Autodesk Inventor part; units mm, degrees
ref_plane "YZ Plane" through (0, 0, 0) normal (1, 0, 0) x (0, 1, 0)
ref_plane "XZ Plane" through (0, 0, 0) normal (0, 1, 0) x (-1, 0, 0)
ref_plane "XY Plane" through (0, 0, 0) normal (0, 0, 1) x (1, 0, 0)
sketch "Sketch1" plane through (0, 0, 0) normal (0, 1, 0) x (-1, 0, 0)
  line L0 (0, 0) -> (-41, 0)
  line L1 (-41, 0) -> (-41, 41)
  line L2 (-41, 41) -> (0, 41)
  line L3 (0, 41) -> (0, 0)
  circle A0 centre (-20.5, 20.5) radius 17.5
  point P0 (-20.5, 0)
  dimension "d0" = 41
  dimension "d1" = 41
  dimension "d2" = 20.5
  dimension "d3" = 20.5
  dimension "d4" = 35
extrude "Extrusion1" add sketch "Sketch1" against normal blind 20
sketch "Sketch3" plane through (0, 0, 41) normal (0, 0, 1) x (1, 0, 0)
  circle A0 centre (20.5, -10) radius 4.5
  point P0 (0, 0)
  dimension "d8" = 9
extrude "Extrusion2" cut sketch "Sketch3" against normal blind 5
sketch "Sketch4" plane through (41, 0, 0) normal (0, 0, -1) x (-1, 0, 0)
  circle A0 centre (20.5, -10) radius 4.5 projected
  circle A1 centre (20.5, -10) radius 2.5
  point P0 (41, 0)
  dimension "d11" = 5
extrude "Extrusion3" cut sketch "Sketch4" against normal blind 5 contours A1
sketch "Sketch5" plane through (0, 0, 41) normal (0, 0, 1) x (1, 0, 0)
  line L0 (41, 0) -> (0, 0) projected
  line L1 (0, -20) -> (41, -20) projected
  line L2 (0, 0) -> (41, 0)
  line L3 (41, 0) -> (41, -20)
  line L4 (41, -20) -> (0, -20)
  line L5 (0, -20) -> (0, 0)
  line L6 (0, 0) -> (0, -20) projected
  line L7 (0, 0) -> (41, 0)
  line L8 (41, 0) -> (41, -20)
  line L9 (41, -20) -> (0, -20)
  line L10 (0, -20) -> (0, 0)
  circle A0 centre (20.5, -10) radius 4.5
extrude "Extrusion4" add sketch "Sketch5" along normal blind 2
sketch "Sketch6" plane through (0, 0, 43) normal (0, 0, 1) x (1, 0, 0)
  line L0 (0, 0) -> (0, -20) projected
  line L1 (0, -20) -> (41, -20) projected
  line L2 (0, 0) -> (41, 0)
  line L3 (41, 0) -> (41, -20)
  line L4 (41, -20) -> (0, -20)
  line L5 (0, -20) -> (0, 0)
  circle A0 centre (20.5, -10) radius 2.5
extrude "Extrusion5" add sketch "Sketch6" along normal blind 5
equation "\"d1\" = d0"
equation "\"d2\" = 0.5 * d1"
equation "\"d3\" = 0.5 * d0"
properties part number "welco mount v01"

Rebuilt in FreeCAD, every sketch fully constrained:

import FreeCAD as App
import Part
import Sketcher
from FreeCAD import Vector
Q = App.Units.Quantity


def add_polygon(sketch, points):
    """Adds a closed chain of lines whose ends are joined by coincident constraints."""
    first, n = sketch.GeometryCount, len(points)
    for a, b in zip(points, points[1:] + points[:1]):
        sketch.addGeometry(Part.LineSegment(App.Vector(*a, 0), App.Vector(*b, 0)), False)
    for i in range(n):
        sketch.addConstraint(Sketcher.Constraint("Coincident", first + i, 2, first + (i + 1) % n, 1))

doc = App.newDocument("Part")
body = doc.addObject("PartDesign::Body", "Body")

# Sketch on XZ plane
sketch1 = doc.addObject("Sketcher::SketchObject", "Sketch")
body.addObject(sketch1)
sketch1.AttachmentSupport = (doc.XZ_Plane, [""])
sketch1.MapMode = "FlatFace"
add_polygon(sketch1, [(41, 0), (0, 0), (0, 41), (41, 41)])  # lines 0-3
sketch1.addGeometry(Part.Circle(Vector(20.5, 20.5, 0), Vector(0, 0, 1), 17.5), False)  # 4
sketch1.addConstraint([
    Sketcher.Constraint("Horizontal", 0),
    Sketcher.Constraint("Vertical", 1),
    Sketcher.Constraint("Horizontal", 2),
    Sketcher.Constraint("Vertical", 3),
    Sketcher.Constraint("Coincident", 0, 2, -1, 1),
    Sketcher.Constraint("Equal", 2, 1),
    Sketcher.Constraint("Diameter", 4, Q("35 mm")),
    Sketcher.Constraint("DistanceX", 0, 2, 0, 1, Q("41 mm")),
    Sketcher.Constraint("DistanceX", -1, 1, 4, 3, Q("20.5 mm")),
    Sketcher.Constraint("DistanceY", -1, 1, 4, 3, Q("20.5 mm")),
])
pad1 = doc.addObject("PartDesign::Pad", "Pad")
body.addObject(pad1)
pad1.Profile = sketch1
pad1.Length = 20

# Sketch on XY plane
sketch2 = doc.addObject("Sketcher::SketchObject", "Sketch001")
body.addObject(sketch2)
sketch2.AttachmentSupport = (doc.XY_Plane, [""])
sketch2.MapMode = "FlatFace"
sketch2.AttachmentOffset = App.Placement(Vector(0, 0, 41), App.Rotation())
sketch2.addGeometry(Part.Circle(Vector(20.5, -10, 0), Vector(0, 0, 1), 4.5), False)
sketch2.addConstraint([
    Sketcher.Constraint("Diameter", 0, Q("9 mm")),
    Sketcher.Constraint("DistanceY", 0, 3, -1, 1, Q("10 mm")),
    Sketcher.Constraint("DistanceX", -1, 1, 0, 3, Q("20.5 mm")),
])
pocket1 = doc.addObject("PartDesign::Pocket", "Pocket")
body.addObject(pocket1)
pocket1.Profile = sketch2
pocket1.Length = 5

# Sketch on XY plane
sketch3 = doc.addObject("Sketcher::SketchObject", "Sketch002")
body.addObject(sketch3)
sketch3.AttachmentSupport = (doc.XY_Plane, [""])
sketch3.MapMode = "FlatFace"
sketch3.addGeometry(Part.Circle(Vector(20.5, -10, 0), Vector(0, 0, 1), 2.5), False)
sketch3.addConstraint([
    Sketcher.Constraint("Diameter", 0, Q("5 mm")),
    Sketcher.Constraint("DistanceY", 0, 3, -1, 1, Q("10 mm")),
    Sketcher.Constraint("DistanceX", -1, 1, 0, 3, Q("20.5 mm")),
])
pocket2 = doc.addObject("PartDesign::Pocket", "Pocket001")
body.addObject(pocket2)
pocket2.Profile = sketch3
pocket2.Length = 5
pocket2.Reversed = True

# Sketch on XY plane
sketch4 = doc.addObject("Sketcher::SketchObject", "Sketch003")
body.addObject(sketch4)
sketch4.AttachmentSupport = (doc.XY_Plane, [""])
sketch4.MapMode = "FlatFace"
sketch4.AttachmentOffset = App.Placement(Vector(0, 0, 41), App.Rotation())
add_polygon(sketch4, [(41, -20), (41, 0), (0, 0), (0, -20)])  # lines 0-3
sketch4.addGeometry(Part.Circle(Vector(20.5, -10, 0), Vector(0, 0, 1), 4.5), False)  # 4
sketch4.addConstraint([
    Sketcher.Constraint("Vertical", 0),
    Sketcher.Constraint("Horizontal", 1),
    Sketcher.Constraint("Vertical", 2),
    Sketcher.Constraint("Horizontal", 3),
    Sketcher.Constraint("Coincident", 1, 2, -1, 1),
    Sketcher.Constraint("Diameter", 4, Q("9 mm")),
    Sketcher.Constraint("DistanceX", 1, 2, 1, 1, Q("41 mm")),
    Sketcher.Constraint("DistanceY", 0, 1, 0, 2, Q("20 mm")),
    Sketcher.Constraint("DistanceY", 4, 3, -1, 1, Q("10 mm")),
    Sketcher.Constraint("DistanceX", -1, 1, 4, 3, Q("20.5 mm")),
])
pad2 = doc.addObject("PartDesign::Pad", "Pad001")
body.addObject(pad2)
pad2.Profile = sketch4
pad2.Length = 2

# Sketch on XY plane
sketch5 = doc.addObject("Sketcher::SketchObject", "Sketch004")
body.addObject(sketch5)
sketch5.AttachmentSupport = (doc.XY_Plane, [""])
sketch5.MapMode = "FlatFace"
sketch5.AttachmentOffset = App.Placement(Vector(0, 0, 43), App.Rotation())
add_polygon(sketch5, [(41, 0), (0, 0), (0, -20), (41, -20)])  # lines 0-3
sketch5.addGeometry(Part.Circle(Vector(20.5, -10, 0), Vector(0, 0, 1), 2.5), False)  # 4
sketch5.addConstraint([
    Sketcher.Constraint("Horizontal", 0),
    Sketcher.Constraint("Vertical", 1),
    Sketcher.Constraint("Horizontal", 2),
    Sketcher.Constraint("Vertical", 3),
    Sketcher.Constraint("Coincident", 0, 2, -1, 1),
    Sketcher.Constraint("Diameter", 4, Q("5 mm")),
    Sketcher.Constraint("DistanceX", 0, 2, 0, 1, Q("41 mm")),
    Sketcher.Constraint("DistanceY", 1, 2, 1, 1, Q("20 mm")),
    Sketcher.Constraint("DistanceY", 4, 3, -1, 1, Q("10 mm")),
    Sketcher.Constraint("DistanceX", -1, 1, 4, 3, Q("20.5 mm")),
])
pad3 = doc.addObject("PartDesign::Pad", "Pad002")
body.addObject(pad3)
pad3.Profile = sketch5
pad3.Length = 5

doc.recompute()
